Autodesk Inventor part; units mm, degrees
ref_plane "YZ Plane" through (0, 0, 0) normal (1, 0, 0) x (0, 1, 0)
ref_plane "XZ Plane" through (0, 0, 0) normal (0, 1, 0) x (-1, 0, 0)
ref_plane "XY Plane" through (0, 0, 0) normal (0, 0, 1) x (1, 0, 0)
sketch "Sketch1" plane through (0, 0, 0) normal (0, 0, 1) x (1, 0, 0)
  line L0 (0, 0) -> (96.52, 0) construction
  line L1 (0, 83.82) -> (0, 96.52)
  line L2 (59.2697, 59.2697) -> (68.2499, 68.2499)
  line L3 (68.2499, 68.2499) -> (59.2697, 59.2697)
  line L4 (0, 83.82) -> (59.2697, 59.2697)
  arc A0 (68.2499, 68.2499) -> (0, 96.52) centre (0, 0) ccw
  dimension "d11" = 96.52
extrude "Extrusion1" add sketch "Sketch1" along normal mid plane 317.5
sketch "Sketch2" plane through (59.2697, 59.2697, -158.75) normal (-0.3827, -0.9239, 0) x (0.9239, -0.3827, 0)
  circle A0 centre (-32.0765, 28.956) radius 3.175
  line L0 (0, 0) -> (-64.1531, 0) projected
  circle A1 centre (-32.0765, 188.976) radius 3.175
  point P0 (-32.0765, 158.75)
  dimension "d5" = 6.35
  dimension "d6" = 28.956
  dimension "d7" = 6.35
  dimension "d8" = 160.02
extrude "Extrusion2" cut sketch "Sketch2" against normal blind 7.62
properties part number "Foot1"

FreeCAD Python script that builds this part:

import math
import FreeCAD as App
import Part
import Sketcher
from FreeCAD import Vector
Q = App.Units.Quantity

doc = App.newDocument("Part")
params = doc.addObject("Spreadsheet::Sheet", "Params")
for row, (alias, value) in enumerate([
    ("sketch1_radius", "3.8 in"),
    ("sketch1_height", "0.5 in"),
    ("sketch1_length", "0.5 in"),
    ("pad1_length", "12.5 in"),
    ("sketch2_diameter", "0.25 in"),
    ("pocket1_length", "0.3 in"),
], start=1):
    params.set(f"A{row}", alias)
    params.set(f"B{row}", "=" + value)
    params.setAlias(f"B{row}", alias)

body = doc.addObject("PartDesign::Body", "Body")

# Sketch on XY plane
sketch1 = body.newObject("Sketcher::SketchObject", "Sketch")
sketch1.AttachmentSupport = (doc.getObject("XY_Plane"), [""])
sketch1.MapMode = "FlatFace"
sketch1.addGeometry(Part.LineSegment(Vector(0, 97, 0), Vector(0, 84, 0)), False)
sketch1.addGeometry(Part.LineSegment(Vector(0, 84, 0), Vector(59, 59, 0)), False)
sketch1.addGeometry(Part.LineSegment(Vector(59, 59, 0), Vector(68, 68, 0)), False)
sketch1.addGeometry(Part.ArcOfCircle(Part.Circle(Vector(0, 0, 0), Vector(0, 0, 1), 97), math.radians(45), math.radians(90)), False)
sketch1.addConstraint(Sketcher.Constraint("Coincident", 0, 2, 1, 1))
sketch1.addConstraint(Sketcher.Constraint("Coincident", 1, 2, 2, 1))
sketch1.addConstraint(Sketcher.Constraint("Coincident", 2, 2, 3, 1))
sketch1.addConstraint(Sketcher.Constraint("Coincident", 3, 2, 0, 1))
sketch1.addConstraint(Sketcher.Constraint("Vertical", 0))
sketch1.addConstraint(Sketcher.Constraint("Coincident", 3, 3, -1, 1))
sketch1.addConstraint(Sketcher.Constraint("PointOnObject", 0, 2, -2))
sketch1.addConstraint(Sketcher.Constraint("Radius", 3, Q("3.8 in")))
sketch1.addConstraint(Sketcher.Constraint("DistanceY", 0, 2, 0, 1, Q("0.5 in")))
sketch1.addConstraint(Sketcher.Constraint("Angle", 2, Q("45 deg")))
sketch1.addConstraint(Sketcher.Constraint("Distance", 2, Q("0.5 in")))
sketch1.addConstraint(Sketcher.Constraint("Angle", 1, Q("-22.5 deg")))
sketch1.setExpression("Constraints[7]", "Params.sketch1_radius")
sketch1.setExpression("Constraints[8]", "Params.sketch1_height")
sketch1.setExpression("Constraints[10]", "Params.sketch1_length")
pad1 = body.newObject("PartDesign::Pad", "Pad")
pad1.Profile = sketch1
pad1.setExpression("Length", "Params.pad1_length")
pad1.Midplane = True

# Sketch on an angled plane
sketch2 = body.newObject("Sketcher::SketchObject", "Sketch001")
sketch2.Placement = App.Placement(Vector(59.2697, 59.2697, -158.75), App.Rotation(Vector(0.923879533, -0.382683432, 0), Vector(0, 0, 1.000000001), Vector(-0.382683432, -0.923879533, 0), "ZXY"))
sketch2.addGeometry(Part.Circle(Vector(-32.1, 29, 0), Vector(0, 0, 1), 3.2), False)
sketch2.addGeometry(Part.Circle(Vector(-32.1, 189, 0), Vector(0, 0, 1), 3.2), False)
sketch2.addConstraint(Sketcher.Constraint("Equal", 0, 1))
sketch2.addConstraint(Sketcher.Constraint("Vertical", 0, 3, 1, 3))
sketch2.addConstraint(Sketcher.Constraint("Diameter", 0, Q("0.25 in")))
sketch2.addConstraint(Sketcher.Constraint("DistanceY", 0, 3, 1, 3, Q("6.3 in")))
sketch2.addConstraint(Sketcher.Constraint("DistanceY", -1, 1, 0, 3, Q("1.14 in")))
sketch2.addConstraint(Sketcher.Constraint("DistanceX", 0, 3, -1, 1, Q("32.0765 mm")))
sketch2.setExpression("Constraints[2]", "Params.sketch2_diameter")
pocket1 = body.newObject("PartDesign::Pocket", "Pocket")
pocket1.Profile = sketch2
pocket1.setExpression("Length", "Params.pocket1_length")

doc.recompute()
